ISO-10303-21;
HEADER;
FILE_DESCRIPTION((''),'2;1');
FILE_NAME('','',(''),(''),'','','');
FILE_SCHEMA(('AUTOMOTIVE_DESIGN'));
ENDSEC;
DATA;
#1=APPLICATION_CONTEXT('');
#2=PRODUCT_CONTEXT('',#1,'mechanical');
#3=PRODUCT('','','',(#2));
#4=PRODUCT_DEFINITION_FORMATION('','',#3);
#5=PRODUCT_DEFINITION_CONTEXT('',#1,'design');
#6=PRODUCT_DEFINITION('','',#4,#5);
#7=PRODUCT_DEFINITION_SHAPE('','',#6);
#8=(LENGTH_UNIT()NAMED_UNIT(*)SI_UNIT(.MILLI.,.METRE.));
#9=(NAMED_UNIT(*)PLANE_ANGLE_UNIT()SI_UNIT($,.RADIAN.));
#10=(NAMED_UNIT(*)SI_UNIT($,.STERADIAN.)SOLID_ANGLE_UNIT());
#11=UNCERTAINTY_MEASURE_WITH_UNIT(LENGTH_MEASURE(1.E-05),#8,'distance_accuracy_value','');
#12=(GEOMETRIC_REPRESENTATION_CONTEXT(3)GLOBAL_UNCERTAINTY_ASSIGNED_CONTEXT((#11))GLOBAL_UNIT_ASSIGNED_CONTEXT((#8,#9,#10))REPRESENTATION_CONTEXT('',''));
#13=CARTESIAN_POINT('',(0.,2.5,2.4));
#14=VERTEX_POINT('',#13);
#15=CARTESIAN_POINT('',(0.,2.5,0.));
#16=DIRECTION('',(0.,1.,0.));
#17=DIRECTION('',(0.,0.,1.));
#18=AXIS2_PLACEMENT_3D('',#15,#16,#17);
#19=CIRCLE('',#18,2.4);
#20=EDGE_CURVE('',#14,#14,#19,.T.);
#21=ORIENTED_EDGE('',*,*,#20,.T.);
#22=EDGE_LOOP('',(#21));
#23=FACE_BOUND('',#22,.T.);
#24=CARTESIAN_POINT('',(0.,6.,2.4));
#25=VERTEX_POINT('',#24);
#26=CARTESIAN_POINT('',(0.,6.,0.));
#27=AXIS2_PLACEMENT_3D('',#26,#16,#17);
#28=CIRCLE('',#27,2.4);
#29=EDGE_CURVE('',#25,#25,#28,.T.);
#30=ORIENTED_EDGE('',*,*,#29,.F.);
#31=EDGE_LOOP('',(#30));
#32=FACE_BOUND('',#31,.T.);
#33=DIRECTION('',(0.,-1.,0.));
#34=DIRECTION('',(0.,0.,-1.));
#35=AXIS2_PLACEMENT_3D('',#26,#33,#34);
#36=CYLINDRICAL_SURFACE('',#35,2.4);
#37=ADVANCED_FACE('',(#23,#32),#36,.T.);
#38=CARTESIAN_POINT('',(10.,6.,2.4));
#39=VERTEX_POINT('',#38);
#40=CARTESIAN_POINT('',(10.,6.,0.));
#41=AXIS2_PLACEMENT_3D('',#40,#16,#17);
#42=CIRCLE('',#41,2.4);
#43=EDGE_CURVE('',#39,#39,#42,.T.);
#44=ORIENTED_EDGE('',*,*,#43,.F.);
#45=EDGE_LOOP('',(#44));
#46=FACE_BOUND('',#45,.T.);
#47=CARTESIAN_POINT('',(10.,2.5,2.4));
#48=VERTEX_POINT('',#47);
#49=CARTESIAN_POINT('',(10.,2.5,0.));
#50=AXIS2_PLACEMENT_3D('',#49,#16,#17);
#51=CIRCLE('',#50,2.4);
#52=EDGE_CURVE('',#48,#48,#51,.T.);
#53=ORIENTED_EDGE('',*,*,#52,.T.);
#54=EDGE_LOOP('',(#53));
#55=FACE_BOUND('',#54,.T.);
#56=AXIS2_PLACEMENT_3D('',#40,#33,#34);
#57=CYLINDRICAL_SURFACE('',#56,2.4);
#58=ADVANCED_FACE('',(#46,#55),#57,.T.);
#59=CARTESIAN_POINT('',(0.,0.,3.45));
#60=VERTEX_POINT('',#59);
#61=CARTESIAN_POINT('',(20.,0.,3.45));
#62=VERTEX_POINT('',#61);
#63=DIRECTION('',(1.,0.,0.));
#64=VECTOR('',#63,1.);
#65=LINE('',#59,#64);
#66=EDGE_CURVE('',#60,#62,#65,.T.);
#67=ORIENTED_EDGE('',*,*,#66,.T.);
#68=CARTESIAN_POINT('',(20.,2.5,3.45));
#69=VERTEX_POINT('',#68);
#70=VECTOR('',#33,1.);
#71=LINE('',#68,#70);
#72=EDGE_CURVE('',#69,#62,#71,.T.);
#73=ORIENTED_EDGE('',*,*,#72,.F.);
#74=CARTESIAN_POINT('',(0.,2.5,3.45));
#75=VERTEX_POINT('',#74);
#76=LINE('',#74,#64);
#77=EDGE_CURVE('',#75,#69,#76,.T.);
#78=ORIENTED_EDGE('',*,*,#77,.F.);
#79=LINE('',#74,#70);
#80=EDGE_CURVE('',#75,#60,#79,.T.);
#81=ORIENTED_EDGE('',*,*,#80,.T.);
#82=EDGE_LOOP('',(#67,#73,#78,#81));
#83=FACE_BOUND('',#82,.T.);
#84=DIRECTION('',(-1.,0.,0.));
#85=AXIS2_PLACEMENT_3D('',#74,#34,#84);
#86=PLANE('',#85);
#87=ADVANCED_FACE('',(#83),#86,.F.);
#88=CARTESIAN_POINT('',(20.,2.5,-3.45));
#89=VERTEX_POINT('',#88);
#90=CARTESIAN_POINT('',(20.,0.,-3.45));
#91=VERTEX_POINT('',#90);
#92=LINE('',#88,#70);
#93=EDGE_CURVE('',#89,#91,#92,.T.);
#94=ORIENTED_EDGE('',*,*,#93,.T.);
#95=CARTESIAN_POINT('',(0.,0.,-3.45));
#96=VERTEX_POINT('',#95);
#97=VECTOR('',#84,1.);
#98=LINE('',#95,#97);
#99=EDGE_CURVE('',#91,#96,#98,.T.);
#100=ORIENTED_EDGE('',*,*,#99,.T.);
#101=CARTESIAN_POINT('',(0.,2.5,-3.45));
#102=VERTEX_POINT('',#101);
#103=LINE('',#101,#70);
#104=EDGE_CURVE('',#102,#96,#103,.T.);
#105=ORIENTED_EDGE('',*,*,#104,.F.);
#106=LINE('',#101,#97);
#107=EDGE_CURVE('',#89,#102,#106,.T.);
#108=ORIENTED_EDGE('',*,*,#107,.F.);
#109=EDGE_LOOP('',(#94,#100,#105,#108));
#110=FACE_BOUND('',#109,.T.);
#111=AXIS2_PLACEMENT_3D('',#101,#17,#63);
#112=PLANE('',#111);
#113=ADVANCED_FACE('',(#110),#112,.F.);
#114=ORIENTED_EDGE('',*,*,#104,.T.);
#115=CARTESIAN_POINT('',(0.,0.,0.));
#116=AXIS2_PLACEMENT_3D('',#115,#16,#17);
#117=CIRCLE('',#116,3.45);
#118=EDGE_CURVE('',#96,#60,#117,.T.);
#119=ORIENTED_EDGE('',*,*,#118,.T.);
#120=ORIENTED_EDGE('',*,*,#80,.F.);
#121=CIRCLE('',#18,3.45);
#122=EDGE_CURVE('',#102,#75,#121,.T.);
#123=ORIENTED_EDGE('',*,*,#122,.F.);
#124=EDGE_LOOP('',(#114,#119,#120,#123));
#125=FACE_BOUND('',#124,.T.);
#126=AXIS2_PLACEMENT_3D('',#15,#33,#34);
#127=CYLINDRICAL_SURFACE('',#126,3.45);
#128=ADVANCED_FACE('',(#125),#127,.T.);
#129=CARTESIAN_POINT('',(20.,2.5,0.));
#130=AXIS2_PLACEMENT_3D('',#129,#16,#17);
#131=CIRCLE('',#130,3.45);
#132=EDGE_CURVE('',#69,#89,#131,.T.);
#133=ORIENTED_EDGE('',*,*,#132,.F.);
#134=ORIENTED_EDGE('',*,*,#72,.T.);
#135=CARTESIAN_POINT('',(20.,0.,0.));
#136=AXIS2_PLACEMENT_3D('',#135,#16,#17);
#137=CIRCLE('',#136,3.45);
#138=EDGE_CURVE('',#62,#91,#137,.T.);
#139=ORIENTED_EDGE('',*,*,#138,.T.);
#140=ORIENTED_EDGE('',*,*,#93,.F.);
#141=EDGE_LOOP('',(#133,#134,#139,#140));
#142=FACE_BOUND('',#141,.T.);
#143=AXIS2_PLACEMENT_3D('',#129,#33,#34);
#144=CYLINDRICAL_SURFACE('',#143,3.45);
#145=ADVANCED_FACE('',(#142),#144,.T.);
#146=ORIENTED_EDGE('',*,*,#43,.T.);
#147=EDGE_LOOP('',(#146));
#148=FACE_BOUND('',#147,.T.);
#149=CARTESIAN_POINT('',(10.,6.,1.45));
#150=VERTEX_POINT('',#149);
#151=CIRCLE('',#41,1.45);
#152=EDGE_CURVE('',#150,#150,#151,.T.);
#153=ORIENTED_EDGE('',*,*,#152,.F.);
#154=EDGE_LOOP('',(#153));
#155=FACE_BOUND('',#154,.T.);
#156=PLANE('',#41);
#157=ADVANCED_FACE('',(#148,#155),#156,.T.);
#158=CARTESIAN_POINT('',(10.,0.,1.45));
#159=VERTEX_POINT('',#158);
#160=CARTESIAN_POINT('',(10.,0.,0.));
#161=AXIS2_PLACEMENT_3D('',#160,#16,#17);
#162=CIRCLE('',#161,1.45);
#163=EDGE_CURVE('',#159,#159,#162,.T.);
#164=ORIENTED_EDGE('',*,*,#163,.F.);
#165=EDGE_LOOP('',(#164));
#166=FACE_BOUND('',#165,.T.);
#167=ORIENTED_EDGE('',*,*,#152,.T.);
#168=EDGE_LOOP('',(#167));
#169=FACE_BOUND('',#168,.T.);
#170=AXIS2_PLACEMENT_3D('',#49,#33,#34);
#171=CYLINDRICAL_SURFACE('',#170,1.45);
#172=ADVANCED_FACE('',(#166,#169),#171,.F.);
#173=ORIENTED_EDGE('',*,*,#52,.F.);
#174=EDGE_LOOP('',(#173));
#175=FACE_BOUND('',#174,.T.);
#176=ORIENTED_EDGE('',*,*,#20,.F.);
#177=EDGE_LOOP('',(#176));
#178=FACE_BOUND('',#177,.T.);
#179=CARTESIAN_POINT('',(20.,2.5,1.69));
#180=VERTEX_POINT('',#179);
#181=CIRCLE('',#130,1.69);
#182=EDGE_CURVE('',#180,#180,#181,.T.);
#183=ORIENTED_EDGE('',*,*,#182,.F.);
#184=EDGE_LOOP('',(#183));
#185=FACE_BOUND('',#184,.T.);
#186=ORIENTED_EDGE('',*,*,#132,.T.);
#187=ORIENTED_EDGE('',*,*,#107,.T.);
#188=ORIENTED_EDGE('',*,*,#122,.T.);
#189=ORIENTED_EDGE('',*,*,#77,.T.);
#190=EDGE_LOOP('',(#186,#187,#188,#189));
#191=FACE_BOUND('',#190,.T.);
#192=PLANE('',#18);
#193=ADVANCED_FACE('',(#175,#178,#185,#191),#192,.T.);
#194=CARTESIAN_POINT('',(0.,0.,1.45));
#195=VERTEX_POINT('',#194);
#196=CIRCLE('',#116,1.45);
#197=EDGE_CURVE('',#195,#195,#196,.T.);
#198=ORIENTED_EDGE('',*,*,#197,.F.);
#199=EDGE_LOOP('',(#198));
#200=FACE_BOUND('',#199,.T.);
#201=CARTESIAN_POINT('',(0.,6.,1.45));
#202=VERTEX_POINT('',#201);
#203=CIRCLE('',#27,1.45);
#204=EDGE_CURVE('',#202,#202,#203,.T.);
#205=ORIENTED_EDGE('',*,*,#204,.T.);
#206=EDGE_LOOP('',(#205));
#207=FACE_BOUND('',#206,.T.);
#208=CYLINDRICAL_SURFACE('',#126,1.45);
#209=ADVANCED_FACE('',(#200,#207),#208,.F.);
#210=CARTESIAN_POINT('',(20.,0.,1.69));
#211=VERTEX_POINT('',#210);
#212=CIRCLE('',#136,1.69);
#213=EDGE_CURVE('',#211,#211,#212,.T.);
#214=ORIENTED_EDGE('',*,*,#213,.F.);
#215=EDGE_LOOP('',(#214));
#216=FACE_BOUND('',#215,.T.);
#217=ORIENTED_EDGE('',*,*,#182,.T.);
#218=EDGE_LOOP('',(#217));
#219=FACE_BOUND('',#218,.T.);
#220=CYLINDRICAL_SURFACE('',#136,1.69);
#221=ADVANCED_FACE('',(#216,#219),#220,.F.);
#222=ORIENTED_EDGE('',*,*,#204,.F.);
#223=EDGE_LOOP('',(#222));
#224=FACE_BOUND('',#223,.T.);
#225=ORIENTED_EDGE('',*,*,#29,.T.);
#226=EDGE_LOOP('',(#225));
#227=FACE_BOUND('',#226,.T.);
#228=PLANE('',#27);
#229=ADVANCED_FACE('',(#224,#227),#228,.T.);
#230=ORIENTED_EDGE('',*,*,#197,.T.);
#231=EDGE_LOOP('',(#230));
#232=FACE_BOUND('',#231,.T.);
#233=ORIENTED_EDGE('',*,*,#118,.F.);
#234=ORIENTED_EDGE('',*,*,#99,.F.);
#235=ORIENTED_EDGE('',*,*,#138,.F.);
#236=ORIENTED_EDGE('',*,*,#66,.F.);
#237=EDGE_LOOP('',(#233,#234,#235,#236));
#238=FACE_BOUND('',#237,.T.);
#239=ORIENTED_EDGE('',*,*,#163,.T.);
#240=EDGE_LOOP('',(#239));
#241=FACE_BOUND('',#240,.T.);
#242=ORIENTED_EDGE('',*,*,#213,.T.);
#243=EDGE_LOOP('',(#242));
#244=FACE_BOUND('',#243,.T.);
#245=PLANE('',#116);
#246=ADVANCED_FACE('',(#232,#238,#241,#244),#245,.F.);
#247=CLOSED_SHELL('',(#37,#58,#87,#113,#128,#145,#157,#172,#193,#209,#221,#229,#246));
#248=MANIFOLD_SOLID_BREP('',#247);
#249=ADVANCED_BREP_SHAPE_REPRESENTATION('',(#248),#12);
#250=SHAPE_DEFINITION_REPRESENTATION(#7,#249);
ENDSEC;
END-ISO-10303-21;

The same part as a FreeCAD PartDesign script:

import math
import FreeCAD as App
import Part
import Sketcher
from FreeCAD import Vector

doc = App.newDocument("Part")
params = doc.addObject("Spreadsheet::Sheet", "Params")
for row, (alias, value) in enumerate([
    ("sketch1_diameter", "2.9 mm"),
    ("sketch1_width", "20 mm"),
    ("sketch1_radius", "3.45 mm"),
    ("pad1_length", "2.5 mm"),
    ("sketch2_diameter", "4.8 mm"),
    ("sketch2_diameter2", "2.9 mm"),
    ("pad2_length", "3.5 mm"),
    ("sketch3_diameter", "3.38 mm"),
], start=1):
    params.set(f"A{row}", alias)
    params.set(f"B{row}", "=" + value)
    params.setAlias(f"B{row}", alias)

body = doc.addObject("PartDesign::Body", "Body")

# Sketch on XZ plane
sketch1 = body.newObject("Sketcher::SketchObject", "Sketch")
sketch1.AttachmentSupport = (doc.getObject("XZ_Plane"), [""])
sketch1.MapMode = "FlatFace"
sketch1.addGeometry([
    Part.LineSegment(Vector(20, -3.5, 0), Vector(0, -3.5, 0)),  # 0
    Part.ArcOfCircle(Part.Circle(Vector(0, 0, 0), Vector(0, 0, 1), 3.5), math.radians(90), math.radians(270)),  # 1
    Part.LineSegment(Vector(0, 3.5, 0), Vector(20, 3.5, 0)),  # 2
    Part.ArcOfCircle(Part.Circle(Vector(20, 0, 0), Vector(0, 0, 1), 3.5), math.radians(-90), math.radians(90)),  # 3
    Part.Circle(Vector(10, 0, 0), Vector(0, 0, 1), 1.4),  # 4
    Part.Circle(Vector(0, 0, 0), Vector(0, 0, 1), 1.4),  # 5
], False)
sketch1.addConstraint([
    Sketcher.Constraint("Tangent", 0, 2, 1, 2),
    Sketcher.Constraint("Tangent", 1, 1, 2, 1),
    Sketcher.Constraint("Tangent", 2, 2, 3, 2),
    Sketcher.Constraint("Tangent", 3, 1, 0, 1),
    Sketcher.Constraint("Horizontal", 0),
    Sketcher.Constraint("Horizontal", 2),
    Sketcher.Constraint("Coincident", 1, 3, -1, 1),
    Sketcher.Constraint("Coincident", 5, 3, -1, 1),
    Sketcher.Constraint("Equal", 4, 5),
    Sketcher.Constraint("PointOnObject", 4, 3, -1),
    Sketcher.Constraint("Diameter", 4, 2.9),
    Sketcher.Constraint("DistanceX", 0, 2, 0, 1, 20.0),
    Sketcher.Constraint("Radius", 1, 3.45),
    Sketcher.Constraint("DistanceX", -1, 1, 4, 3, 10.0),
])
sketch1.setExpression("Constraints[10]", "Params.sketch1_diameter")
sketch1.setExpression("Constraints[11]", "Params.sketch1_width")
sketch1.setExpression("Constraints[12]", "Params.sketch1_radius")
pad1 = body.newObject("PartDesign::Pad", "Pad")
pad1.Profile = sketch1
pad1.setExpression("Length", "Params.pad1_length")
pad1.Reversed = True

# Sketch on XZ plane
sketch2 = body.newObject("Sketcher::SketchObject", "Sketch001")
sketch2.AttachmentSupport = (doc.getObject("XZ_Plane"), [""])
sketch2.MapMode = "FlatFace"
sketch2.AttachmentOffset = App.Placement(Vector(0, 0, -2.5), App.Rotation())
sketch2.addGeometry([
    Part.Circle(Vector(0, 0, 0), Vector(0, 0, 1), 2.4),
    Part.Circle(Vector(0, 0, 0), Vector(0, 0, 1), 1.4),
    Part.Circle(Vector(10, 0, 0), Vector(0, 0, 1), 2.4),
    Part.Circle(Vector(10, 0, 0), Vector(0, 0, 1), 1.4),
], False)
sketch2.addConstraint([
    Sketcher.Constraint("Coincident", 0, 3, -1, 1),
    Sketcher.Constraint("Coincident", 1, 3, -1, 1),
    Sketcher.Constraint("Coincident", 3, 3, 2, 3),
    Sketcher.Constraint("Equal", 0, 2),
    Sketcher.Constraint("Equal", 1, 3),
    Sketcher.Constraint("PointOnObject", 2, 3, -1),
    Sketcher.Constraint("Diameter", 0, 4.8),
    Sketcher.Constraint("Diameter", 1, 2.9),
    Sketcher.Constraint("DistanceX", -1, 1, 2, 3, 10.0),
])
sketch2.setExpression("Constraints[6]", "Params.sketch2_diameter")
sketch2.setExpression("Constraints[7]", "Params.sketch2_diameter2")
pad2 = body.newObject("PartDesign::Pad", "Pad001")
pad2.Profile = sketch2
pad2.setExpression("Length", "Params.pad2_length")
pad2.Reversed = True

# Sketch on XZ plane
sketch3 = body.newObject("Sketcher::SketchObject", "Sketch002")
sketch3.AttachmentSupport = (doc.getObject("XZ_Plane"), [""])
sketch3.MapMode = "FlatFace"
sketch3.AttachmentOffset = App.Placement(Vector(0, 0, -2.5), App.Rotation())
sketch3.addGeometry(Part.Circle(Vector(20, 0, 0), Vector(0, 0, 1), 1.7), False)
sketch3.addConstraint([
    Sketcher.Constraint("PointOnObject", 0, 3, -1),
    Sketcher.Constraint("Diameter", 0, 3.38),
    Sketcher.Constraint("DistanceX", -1, 1, 0, 3, 20.0),
])
sketch3.setExpression("Constraints[1]", "Params.sketch3_diameter")
pocket1 = body.newObject("PartDesign::Pocket", "Pocket")
pocket1.Profile = sketch3
pocket1.Type = "ThroughAll"
pocket1.Reversed = True

doc.recompute()
